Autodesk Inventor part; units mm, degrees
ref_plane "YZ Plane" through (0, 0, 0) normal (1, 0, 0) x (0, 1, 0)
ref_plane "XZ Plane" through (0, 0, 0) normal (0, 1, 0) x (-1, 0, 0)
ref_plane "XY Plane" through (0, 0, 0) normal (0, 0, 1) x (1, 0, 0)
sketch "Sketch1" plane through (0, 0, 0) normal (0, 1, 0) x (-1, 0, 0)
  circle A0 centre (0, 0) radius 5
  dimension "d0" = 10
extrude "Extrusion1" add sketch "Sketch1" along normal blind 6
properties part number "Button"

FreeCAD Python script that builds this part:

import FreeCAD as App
import Part
import Sketcher

V = App.Vector

doc = App.newDocument("Part")
body = doc.addObject("PartDesign::Body", "Body")

sketch1 = body.newObject("Sketcher::SketchObject", "Sketch")
sketch1.AttachmentSupport = (doc.getObject("XZ_Plane"), [""])
sketch1.MapMode = "FlatFace"
sketch1.addGeometry(Part.Circle(V(0, 0, 0), V(0, 0, 1), 5), False)
sketch1.addConstraint(Sketcher.Constraint("Coincident", 0, 3, -1, 1))
sketch1.addConstraint(Sketcher.Constraint("Diameter", 0, 10.0))
pad1 = body.newObject("PartDesign::Pad", "Pad")
pad1.Profile = sketch1
pad1.Length = 6
pad1.Reversed = True

doc.recompute()
